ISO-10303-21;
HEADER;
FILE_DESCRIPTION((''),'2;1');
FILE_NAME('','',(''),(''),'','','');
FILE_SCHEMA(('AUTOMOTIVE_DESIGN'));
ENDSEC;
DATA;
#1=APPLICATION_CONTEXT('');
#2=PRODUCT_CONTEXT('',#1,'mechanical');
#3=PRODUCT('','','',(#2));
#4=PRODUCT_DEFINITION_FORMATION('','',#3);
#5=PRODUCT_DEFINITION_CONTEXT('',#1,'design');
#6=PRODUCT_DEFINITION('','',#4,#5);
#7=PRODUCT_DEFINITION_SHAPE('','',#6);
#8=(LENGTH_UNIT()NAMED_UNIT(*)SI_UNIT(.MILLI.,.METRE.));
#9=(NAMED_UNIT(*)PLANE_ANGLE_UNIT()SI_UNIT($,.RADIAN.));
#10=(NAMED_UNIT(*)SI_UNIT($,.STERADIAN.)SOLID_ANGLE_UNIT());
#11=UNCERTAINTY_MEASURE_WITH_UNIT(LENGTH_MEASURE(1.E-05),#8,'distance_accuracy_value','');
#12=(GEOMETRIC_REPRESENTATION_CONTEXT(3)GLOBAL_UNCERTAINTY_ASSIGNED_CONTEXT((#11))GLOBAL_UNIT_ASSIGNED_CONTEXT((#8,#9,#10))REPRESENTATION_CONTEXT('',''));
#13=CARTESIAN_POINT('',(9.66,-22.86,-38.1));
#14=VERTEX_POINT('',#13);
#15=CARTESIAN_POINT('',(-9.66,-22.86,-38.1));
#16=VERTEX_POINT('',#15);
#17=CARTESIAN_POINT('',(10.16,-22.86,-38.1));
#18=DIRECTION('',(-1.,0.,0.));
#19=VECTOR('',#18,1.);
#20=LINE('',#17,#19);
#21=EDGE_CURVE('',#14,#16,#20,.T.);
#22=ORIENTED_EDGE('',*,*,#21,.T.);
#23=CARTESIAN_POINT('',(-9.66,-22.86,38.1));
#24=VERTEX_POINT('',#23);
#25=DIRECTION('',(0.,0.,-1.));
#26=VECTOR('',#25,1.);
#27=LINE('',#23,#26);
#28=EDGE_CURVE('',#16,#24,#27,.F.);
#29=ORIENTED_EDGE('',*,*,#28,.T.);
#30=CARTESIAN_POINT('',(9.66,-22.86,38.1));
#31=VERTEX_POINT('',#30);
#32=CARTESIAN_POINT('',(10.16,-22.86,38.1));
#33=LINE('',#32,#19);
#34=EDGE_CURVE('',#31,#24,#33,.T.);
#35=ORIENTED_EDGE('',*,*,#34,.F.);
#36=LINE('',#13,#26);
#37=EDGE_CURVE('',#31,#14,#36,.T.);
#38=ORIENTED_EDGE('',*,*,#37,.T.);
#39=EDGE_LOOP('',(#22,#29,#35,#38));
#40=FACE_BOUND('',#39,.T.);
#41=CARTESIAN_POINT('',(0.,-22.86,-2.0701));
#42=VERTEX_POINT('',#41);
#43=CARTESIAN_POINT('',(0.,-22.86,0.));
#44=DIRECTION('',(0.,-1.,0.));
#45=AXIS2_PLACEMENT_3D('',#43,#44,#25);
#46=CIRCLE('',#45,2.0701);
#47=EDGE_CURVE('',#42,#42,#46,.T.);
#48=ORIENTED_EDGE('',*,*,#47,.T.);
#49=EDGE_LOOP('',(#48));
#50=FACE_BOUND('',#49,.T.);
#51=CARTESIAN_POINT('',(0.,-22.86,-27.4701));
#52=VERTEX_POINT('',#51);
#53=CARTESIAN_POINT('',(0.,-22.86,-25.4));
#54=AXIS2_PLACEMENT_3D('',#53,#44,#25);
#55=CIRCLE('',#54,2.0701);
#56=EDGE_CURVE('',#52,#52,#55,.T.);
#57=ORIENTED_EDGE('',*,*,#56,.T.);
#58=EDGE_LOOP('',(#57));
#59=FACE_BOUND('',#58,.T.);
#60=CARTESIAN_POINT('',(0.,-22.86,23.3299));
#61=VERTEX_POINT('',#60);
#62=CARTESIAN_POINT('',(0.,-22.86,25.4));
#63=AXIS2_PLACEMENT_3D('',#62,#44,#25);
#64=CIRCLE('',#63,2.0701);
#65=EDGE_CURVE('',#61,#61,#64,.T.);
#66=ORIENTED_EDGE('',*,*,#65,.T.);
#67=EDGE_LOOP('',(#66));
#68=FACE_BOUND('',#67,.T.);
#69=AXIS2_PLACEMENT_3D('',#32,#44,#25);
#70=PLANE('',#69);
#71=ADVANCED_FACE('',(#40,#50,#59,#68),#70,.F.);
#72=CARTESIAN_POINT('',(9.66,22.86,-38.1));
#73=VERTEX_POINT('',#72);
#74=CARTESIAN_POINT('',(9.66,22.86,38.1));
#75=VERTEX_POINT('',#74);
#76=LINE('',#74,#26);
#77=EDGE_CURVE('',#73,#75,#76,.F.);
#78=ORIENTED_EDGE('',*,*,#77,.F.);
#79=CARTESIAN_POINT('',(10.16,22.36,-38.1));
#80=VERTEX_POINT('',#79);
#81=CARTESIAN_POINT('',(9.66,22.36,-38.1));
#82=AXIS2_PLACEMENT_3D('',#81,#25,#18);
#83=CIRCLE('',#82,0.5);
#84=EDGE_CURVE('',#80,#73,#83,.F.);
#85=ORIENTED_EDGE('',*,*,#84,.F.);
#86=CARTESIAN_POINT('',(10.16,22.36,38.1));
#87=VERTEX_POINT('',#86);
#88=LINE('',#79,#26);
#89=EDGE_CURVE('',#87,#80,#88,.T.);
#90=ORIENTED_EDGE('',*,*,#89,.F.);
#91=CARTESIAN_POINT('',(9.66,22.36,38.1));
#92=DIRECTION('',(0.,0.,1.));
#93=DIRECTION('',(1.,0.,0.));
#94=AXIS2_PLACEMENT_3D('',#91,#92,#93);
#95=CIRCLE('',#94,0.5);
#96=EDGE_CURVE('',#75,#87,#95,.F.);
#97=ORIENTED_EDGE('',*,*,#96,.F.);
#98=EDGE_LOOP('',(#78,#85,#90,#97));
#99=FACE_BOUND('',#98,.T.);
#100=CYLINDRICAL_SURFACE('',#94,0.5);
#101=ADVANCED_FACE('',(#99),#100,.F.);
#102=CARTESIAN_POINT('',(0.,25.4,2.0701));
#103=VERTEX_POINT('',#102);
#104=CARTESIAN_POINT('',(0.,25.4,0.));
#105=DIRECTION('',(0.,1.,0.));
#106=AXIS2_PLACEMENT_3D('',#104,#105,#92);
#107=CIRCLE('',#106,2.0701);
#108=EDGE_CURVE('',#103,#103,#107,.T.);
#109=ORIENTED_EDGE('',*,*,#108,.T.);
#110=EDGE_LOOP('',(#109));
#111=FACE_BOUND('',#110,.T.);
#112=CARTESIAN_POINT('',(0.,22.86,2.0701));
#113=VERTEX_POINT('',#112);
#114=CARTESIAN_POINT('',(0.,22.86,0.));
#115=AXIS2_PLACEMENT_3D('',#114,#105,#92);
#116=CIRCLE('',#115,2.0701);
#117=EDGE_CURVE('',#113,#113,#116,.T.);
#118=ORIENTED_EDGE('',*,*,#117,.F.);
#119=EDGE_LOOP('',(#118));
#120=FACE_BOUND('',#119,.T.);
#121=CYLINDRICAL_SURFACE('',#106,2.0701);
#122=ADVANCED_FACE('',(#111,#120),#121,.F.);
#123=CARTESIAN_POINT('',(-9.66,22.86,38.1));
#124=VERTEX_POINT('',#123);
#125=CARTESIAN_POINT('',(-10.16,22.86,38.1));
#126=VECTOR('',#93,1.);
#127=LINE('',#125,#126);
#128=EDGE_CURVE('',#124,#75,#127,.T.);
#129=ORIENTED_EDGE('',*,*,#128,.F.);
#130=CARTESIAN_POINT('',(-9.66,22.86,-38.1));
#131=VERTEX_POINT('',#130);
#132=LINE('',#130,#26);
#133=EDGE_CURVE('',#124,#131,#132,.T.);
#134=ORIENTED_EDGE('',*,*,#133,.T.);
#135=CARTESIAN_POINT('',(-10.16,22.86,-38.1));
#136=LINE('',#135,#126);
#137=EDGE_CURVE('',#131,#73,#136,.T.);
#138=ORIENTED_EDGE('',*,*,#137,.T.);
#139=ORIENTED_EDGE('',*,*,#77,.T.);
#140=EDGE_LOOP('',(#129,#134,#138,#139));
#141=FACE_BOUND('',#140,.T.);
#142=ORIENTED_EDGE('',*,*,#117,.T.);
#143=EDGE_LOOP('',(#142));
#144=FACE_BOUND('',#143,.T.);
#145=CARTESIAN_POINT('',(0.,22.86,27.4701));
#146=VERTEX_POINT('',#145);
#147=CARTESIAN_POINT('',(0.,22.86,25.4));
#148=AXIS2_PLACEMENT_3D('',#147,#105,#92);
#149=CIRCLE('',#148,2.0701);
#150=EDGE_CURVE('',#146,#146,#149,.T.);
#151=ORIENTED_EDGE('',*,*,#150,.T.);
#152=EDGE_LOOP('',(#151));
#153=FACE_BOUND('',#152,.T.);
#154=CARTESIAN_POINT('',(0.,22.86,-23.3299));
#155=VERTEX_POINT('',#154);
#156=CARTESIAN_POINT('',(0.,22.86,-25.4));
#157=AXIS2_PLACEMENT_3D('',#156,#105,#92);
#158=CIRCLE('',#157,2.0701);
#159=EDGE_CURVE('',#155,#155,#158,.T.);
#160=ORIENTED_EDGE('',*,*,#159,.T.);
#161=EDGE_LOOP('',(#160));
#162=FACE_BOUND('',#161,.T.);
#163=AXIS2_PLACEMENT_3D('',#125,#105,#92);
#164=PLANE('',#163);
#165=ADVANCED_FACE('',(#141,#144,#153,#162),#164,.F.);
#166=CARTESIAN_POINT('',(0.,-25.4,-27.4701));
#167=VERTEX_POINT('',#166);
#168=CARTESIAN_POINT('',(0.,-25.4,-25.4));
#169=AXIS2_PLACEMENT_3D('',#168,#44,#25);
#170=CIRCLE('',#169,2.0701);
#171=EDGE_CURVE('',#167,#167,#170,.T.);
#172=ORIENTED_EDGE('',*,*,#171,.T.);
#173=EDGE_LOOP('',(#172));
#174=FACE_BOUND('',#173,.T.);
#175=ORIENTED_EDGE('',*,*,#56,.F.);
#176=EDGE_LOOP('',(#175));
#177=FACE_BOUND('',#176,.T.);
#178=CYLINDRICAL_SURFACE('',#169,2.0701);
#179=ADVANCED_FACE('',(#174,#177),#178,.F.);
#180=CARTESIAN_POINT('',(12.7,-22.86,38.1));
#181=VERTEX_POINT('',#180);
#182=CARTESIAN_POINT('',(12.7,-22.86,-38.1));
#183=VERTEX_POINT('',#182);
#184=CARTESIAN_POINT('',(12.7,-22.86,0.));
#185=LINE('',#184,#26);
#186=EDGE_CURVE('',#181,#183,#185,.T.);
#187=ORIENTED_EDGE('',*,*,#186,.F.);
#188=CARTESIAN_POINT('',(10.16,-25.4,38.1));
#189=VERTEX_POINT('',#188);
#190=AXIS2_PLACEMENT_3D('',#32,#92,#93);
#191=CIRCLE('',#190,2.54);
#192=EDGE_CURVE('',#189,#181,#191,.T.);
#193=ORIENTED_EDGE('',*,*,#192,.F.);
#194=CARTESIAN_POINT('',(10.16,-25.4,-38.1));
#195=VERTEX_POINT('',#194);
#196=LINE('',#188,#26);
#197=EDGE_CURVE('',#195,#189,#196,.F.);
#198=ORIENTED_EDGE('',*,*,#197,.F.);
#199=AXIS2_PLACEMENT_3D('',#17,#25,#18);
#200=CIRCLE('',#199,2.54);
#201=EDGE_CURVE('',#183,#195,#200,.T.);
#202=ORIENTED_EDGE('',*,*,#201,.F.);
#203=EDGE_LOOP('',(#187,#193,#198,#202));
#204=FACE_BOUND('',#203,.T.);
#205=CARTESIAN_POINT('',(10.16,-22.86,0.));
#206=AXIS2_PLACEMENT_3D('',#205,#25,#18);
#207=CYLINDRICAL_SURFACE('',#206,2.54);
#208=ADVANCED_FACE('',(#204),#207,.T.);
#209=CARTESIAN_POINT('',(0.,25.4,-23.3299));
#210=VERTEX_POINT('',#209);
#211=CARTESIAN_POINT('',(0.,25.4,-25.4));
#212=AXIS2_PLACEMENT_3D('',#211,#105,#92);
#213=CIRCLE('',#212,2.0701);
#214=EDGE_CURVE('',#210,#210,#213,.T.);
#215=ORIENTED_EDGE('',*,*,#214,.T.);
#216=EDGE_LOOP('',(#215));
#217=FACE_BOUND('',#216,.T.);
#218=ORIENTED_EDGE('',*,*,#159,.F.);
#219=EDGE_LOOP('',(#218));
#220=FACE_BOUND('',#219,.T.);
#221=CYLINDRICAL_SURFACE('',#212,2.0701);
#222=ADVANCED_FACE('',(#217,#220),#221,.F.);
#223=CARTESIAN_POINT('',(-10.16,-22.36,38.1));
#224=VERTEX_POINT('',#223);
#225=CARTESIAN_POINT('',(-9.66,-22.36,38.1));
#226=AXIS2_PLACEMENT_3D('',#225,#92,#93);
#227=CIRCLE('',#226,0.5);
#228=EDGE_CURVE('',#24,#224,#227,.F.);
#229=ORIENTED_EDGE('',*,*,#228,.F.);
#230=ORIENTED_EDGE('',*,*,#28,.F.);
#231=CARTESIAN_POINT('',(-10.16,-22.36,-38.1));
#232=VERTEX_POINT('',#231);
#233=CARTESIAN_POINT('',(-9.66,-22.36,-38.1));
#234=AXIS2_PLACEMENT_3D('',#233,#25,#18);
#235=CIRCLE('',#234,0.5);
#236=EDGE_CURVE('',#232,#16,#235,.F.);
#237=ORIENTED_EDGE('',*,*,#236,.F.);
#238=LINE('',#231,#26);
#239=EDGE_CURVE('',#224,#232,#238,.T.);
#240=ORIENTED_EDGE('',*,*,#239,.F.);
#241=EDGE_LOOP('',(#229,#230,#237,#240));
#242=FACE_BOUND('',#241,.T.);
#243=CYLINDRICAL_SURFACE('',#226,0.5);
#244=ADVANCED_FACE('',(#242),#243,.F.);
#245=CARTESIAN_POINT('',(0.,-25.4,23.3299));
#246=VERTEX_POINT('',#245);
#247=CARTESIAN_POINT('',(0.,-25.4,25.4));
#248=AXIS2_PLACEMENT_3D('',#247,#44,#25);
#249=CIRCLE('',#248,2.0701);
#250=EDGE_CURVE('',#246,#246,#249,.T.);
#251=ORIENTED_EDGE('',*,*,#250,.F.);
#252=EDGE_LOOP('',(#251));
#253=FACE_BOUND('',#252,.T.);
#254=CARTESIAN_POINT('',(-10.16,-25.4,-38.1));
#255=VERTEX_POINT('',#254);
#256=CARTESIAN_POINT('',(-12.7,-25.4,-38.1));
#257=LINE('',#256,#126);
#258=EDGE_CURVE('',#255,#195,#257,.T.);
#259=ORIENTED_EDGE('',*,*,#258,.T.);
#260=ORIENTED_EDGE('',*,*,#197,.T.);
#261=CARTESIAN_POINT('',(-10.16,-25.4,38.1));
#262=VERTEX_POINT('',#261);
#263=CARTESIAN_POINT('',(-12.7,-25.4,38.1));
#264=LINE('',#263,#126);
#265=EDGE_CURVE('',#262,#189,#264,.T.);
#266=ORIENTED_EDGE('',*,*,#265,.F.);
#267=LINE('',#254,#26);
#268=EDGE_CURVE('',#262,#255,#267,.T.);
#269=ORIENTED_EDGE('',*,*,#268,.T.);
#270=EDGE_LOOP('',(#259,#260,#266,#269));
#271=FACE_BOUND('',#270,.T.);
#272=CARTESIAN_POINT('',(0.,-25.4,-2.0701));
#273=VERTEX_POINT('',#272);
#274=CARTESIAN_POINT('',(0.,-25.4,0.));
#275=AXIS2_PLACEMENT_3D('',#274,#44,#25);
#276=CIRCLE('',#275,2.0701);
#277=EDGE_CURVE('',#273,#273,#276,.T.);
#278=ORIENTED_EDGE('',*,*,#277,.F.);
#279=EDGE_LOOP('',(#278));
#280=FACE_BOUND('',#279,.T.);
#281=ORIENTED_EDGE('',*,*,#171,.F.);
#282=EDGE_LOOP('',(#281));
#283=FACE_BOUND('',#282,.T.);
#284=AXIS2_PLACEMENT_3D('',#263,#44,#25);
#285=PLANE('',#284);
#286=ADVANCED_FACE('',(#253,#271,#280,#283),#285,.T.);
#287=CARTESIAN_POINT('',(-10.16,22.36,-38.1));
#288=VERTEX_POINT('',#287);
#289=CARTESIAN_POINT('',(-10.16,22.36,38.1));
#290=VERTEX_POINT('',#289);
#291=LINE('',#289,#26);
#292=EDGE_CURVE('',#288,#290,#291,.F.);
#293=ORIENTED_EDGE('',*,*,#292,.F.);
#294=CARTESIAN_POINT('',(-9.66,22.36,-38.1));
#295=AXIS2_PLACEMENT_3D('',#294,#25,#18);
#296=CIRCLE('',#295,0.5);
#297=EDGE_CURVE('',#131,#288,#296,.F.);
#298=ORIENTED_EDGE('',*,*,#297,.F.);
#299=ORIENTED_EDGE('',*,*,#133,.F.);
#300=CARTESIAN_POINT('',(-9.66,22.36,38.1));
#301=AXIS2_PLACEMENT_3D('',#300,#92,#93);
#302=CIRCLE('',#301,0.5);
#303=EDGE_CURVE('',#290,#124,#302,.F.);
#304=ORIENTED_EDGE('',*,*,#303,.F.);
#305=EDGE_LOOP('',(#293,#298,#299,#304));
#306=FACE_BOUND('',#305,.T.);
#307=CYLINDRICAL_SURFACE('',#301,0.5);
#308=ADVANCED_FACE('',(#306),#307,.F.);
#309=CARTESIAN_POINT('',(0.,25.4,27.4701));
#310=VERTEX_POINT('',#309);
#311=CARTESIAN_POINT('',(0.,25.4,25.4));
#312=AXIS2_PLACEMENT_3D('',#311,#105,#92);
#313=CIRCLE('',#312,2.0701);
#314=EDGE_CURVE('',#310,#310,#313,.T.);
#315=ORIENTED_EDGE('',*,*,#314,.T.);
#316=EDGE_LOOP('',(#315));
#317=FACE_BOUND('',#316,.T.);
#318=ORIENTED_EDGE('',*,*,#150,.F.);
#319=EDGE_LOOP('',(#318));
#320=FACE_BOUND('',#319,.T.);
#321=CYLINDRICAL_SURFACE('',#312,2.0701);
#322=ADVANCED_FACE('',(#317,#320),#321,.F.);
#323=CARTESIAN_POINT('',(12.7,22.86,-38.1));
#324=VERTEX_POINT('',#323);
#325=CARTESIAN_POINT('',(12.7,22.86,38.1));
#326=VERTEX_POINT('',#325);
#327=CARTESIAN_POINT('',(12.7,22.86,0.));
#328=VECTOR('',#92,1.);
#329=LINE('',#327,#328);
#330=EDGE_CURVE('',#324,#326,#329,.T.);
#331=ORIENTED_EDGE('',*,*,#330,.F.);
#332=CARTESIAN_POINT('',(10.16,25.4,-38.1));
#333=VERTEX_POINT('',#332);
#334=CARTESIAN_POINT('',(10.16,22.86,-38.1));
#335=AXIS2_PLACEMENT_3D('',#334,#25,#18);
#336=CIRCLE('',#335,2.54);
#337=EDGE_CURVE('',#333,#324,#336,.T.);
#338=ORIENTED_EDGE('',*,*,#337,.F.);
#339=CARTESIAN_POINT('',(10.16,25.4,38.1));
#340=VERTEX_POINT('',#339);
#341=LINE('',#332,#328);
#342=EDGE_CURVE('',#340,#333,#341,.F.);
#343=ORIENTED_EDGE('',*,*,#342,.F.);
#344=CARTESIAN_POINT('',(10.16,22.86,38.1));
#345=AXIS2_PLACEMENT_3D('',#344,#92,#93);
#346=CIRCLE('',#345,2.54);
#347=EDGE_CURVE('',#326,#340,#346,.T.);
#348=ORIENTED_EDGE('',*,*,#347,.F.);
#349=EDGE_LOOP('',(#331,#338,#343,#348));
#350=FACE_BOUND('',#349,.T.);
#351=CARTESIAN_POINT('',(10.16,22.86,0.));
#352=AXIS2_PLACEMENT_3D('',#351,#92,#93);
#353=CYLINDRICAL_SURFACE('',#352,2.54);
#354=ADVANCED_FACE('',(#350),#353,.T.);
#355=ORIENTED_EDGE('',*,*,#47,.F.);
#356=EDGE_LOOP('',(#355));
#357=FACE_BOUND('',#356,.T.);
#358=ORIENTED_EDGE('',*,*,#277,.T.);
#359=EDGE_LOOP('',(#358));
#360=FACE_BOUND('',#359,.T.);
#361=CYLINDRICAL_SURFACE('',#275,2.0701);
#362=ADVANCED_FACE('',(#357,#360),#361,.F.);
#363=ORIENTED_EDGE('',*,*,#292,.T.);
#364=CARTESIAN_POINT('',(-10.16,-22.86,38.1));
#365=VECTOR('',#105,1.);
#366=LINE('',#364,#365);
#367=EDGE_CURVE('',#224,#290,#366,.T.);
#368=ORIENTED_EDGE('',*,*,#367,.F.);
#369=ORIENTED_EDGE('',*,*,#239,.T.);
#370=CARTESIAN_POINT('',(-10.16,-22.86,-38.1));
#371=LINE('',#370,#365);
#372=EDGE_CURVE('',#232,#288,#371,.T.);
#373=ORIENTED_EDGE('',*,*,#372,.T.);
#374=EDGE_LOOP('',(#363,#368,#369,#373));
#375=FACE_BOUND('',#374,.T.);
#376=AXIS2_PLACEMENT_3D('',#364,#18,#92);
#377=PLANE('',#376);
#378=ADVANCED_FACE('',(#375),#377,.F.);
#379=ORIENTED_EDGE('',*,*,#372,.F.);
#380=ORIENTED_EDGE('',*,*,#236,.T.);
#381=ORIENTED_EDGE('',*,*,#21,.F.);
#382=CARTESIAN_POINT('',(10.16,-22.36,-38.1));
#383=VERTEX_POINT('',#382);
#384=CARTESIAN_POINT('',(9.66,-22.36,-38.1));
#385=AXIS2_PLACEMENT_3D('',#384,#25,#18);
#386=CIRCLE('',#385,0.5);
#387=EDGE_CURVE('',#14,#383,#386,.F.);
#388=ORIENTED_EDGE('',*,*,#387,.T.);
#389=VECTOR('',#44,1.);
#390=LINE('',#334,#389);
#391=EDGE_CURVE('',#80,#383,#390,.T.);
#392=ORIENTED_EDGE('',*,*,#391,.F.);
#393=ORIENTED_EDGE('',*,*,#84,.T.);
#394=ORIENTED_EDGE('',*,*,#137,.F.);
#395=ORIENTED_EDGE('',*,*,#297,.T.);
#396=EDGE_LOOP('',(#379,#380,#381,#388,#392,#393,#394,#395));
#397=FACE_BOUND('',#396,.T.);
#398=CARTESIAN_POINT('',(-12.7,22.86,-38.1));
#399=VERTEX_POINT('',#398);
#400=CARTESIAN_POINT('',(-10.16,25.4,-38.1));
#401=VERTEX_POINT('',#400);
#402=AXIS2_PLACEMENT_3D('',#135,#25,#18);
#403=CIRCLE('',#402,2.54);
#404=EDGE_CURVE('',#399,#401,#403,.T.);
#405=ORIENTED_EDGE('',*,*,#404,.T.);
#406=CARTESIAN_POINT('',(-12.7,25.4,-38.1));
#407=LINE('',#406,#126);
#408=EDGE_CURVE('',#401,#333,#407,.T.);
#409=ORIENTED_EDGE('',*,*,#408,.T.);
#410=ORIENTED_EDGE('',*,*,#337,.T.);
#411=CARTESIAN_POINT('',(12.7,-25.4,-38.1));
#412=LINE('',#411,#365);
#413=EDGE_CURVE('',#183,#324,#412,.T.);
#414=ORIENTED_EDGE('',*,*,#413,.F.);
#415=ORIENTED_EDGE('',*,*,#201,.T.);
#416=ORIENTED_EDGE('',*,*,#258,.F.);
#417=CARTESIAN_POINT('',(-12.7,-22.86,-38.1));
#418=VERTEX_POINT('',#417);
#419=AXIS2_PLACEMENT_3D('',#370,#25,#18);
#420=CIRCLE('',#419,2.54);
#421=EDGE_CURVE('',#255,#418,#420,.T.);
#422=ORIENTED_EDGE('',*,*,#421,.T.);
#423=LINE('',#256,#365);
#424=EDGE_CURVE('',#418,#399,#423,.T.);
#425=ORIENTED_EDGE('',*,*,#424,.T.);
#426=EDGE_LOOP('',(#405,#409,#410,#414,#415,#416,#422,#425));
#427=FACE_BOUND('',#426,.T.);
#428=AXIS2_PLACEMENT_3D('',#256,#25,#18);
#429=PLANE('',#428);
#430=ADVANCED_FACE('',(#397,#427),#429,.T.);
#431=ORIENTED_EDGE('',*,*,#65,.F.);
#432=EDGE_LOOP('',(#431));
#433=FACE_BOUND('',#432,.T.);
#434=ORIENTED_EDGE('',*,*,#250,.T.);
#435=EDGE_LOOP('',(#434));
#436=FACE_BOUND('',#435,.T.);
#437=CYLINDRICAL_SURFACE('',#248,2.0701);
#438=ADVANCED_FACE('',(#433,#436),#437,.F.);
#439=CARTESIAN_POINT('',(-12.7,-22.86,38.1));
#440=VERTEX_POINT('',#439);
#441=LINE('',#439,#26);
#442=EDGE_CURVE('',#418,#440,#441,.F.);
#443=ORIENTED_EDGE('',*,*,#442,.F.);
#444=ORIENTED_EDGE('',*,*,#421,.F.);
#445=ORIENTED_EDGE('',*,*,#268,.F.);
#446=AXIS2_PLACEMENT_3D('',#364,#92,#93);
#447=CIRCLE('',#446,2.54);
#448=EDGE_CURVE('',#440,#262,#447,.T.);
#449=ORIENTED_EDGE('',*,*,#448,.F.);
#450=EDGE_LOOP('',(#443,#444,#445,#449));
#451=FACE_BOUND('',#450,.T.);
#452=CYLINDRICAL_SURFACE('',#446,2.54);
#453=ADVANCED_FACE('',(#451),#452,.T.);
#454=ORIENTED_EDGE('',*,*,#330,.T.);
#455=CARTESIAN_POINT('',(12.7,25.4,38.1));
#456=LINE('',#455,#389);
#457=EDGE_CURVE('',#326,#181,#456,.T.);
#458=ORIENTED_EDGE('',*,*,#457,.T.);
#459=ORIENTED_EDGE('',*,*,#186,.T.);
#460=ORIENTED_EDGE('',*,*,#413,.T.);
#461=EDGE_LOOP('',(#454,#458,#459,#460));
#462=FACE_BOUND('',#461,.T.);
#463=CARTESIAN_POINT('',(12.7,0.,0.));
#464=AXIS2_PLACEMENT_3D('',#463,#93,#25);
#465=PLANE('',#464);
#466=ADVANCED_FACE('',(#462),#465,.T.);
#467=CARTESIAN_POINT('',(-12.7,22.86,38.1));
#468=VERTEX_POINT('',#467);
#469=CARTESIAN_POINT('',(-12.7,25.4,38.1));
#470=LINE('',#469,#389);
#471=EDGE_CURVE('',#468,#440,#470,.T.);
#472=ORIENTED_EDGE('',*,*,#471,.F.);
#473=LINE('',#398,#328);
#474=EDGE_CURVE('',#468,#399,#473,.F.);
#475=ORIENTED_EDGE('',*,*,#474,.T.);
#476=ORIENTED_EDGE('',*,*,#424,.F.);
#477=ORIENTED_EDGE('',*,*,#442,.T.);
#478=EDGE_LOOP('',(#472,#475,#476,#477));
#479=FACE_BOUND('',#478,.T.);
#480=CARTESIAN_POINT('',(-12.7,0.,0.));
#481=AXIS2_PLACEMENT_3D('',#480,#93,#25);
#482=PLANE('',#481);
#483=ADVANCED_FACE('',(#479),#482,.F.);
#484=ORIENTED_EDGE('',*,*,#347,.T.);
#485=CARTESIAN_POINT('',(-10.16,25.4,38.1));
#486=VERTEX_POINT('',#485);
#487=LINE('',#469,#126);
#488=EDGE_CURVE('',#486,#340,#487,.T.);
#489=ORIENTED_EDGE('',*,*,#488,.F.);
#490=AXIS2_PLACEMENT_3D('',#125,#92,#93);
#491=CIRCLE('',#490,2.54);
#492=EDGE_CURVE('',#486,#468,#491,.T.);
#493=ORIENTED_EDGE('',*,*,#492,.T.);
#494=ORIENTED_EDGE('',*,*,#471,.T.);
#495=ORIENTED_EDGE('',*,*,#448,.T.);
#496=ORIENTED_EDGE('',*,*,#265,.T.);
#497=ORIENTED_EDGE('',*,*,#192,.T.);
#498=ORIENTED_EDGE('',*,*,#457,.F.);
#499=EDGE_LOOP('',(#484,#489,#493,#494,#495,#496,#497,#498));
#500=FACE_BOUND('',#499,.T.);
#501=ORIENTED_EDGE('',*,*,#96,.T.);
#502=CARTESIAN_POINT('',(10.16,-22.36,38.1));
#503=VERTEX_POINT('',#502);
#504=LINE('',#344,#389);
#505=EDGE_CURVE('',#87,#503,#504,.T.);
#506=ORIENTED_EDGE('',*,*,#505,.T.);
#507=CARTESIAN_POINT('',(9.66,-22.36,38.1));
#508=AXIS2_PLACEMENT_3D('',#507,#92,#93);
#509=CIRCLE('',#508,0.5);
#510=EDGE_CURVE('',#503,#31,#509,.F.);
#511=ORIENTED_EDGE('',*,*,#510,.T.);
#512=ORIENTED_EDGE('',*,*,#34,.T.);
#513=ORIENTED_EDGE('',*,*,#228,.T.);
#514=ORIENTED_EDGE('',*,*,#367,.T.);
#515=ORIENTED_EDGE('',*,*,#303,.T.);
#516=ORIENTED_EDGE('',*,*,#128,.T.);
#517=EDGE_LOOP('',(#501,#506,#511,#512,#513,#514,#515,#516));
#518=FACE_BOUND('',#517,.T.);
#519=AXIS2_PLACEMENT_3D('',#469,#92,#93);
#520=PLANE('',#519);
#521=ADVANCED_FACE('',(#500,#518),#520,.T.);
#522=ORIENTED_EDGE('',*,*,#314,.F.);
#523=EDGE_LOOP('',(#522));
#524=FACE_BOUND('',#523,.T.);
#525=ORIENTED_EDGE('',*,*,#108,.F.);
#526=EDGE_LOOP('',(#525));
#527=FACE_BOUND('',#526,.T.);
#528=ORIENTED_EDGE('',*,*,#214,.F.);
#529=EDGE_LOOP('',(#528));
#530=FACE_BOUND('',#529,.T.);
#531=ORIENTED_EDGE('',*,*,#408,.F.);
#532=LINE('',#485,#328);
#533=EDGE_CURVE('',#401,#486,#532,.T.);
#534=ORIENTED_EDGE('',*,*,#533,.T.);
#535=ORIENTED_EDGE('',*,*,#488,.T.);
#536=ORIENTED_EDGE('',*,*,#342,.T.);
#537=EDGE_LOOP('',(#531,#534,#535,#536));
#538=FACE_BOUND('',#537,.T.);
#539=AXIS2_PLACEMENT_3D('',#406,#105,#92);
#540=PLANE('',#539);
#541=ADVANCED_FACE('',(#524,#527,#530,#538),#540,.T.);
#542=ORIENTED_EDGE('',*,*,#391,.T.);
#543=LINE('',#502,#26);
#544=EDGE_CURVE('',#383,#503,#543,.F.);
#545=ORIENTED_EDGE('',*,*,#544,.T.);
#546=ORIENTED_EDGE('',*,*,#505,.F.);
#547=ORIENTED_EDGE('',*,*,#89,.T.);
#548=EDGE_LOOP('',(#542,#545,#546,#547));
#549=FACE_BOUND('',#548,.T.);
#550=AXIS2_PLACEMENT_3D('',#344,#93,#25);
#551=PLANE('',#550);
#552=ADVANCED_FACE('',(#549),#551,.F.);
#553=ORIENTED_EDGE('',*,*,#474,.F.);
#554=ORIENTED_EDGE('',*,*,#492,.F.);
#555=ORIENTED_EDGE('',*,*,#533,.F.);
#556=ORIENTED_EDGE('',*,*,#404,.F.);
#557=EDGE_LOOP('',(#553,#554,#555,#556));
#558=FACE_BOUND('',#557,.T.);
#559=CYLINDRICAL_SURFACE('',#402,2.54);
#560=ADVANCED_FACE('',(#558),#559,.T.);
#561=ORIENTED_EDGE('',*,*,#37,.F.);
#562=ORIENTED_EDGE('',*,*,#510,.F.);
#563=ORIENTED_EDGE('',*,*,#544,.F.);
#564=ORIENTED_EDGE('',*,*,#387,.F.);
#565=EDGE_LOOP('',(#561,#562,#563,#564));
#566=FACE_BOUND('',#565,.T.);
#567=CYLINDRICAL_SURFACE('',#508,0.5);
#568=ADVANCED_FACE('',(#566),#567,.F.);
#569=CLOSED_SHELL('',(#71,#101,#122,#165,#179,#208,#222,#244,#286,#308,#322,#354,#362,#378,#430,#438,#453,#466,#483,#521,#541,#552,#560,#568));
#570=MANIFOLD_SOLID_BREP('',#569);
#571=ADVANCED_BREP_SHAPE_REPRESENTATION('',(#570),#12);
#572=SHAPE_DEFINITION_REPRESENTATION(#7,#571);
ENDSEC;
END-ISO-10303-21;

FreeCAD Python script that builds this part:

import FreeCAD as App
import Part
import Sketcher

V = App.Vector
Q = App.Units.Quantity


def edges_at(feature, points):
    """Names of the edges that pass closest to the given points."""
    edges = feature.Shape.Edges
    near = lambda p: min(range(len(edges)), key=lambda i: edges[i].distToShape(Part.Vertex(*p))[0])
    return sorted({f"Edge{near(p) + 1}" for p in points})

doc = App.newDocument("Part")
params = doc.addObject("Spreadsheet::Sheet", "Params")
for row, (alias, value) in enumerate([
    ("sketch1_width", "2 in"),
    ("sketch1_height", "3 in"),
    ("pad1_length", "1 in"),
    ("sketch2_width", "0.8 in"),
    ("sketch2_height", "1.8 in"),
    ("sketch3_diameter", "0.163 in"),
    ("hole_diameter", "0.163 in"),
    ("hole_depth", "2 in"),
    ("sketch4_diameter", "0.163 in"),
    ("hole2_diameter", "0.163 in"),
    ("hole2_depth", "2 in"),
    ("fillet_radius", "0.5 mm"),
    ("fillet2_radius", "0.1 in"),
], start=1):
    params.set(f"A{row}", alias)
    params.set(f"B{row}", "=" + value)
    params.setAlias(f"B{row}", alias)

body = doc.addObject("PartDesign::Body", "Body")

# Sketch on YZ plane
sketch1 = body.newObject("Sketcher::SketchObject", "Sketch")
sketch1.AttachmentSupport = (doc.getObject("YZ_Plane"), [""])
sketch1.MapMode = "FlatFace"
sketch1.AttachmentOffset = App.Placement(V(0, 0, 0.5 * 25.4), App.Rotation())
sketch1.addGeometry([
    Part.LineSegment(V(25.4, 38.1, 0), V(-25.4, 38.1, 0)),
    Part.LineSegment(V(-25.4, 38.1, 0), V(-25.4, -38.1, 0)),
    Part.LineSegment(V(-25.4, -38.1, 0), V(25.4, -38.1, 0)),
    Part.LineSegment(V(25.4, -38.1, 0), V(25.4, 38.1, 0)),
], False)
sketch1.addConstraint([
    Sketcher.Constraint("Coincident", 0, 2, 1, 1),
    Sketcher.Constraint("Coincident", 1, 2, 2, 1),
    Sketcher.Constraint("Coincident", 2, 2, 3, 1),
    Sketcher.Constraint("Coincident", 3, 2, 0, 1),
    Sketcher.Constraint("Horizontal", 0),
    Sketcher.Constraint("Vertical", 1),
    Sketcher.Constraint("Horizontal", 2),
    Sketcher.Constraint("Vertical", 3),
    Sketcher.Constraint("Symmetric", 0, 2, 2, 2, -1, 1),
    Sketcher.Constraint("DistanceX", 0, 2, 0, 1, Q("2 in")),
    Sketcher.Constraint("DistanceY", 1, 2, 1, 1, Q("3 in")),
])
sketch1.setExpression("Constraints[9]", "Params.sketch1_width")
sketch1.setExpression("Constraints[10]", "Params.sketch1_height")
pad1 = body.newObject("PartDesign::Pad", "Pad")
pad1.Profile = sketch1
pad1.setExpression("Length", "Params.pad1_length")
pad1.Reversed = True

# Sketch on XY plane
sketch2 = body.newObject("Sketcher::SketchObject", "Sketch001")
sketch2.AttachmentSupport = (doc.getObject("XY_Plane"), [""])
sketch2.MapMode = "FlatFace"
sketch2.AttachmentOffset = App.Placement(V(0, 0, -1.5 * 25.4), App.Rotation())
sketch2.addGeometry([
    Part.LineSegment(V(10.16, 22.86, 0), V(10.16, -22.86, 0)),
    Part.LineSegment(V(10.16, -22.86, 0), V(-10.16, -22.86, 0)),
    Part.LineSegment(V(-10.16, -22.86, 0), V(-10.16, 22.86, 0)),
    Part.LineSegment(V(-10.16, 22.86, 0), V(10.16, 22.86, 0)),
], False)
sketch2.addConstraint([
    Sketcher.Constraint("Coincident", 0, 2, 1, 1),
    Sketcher.Constraint("Coincident", 1, 2, 2, 1),
    Sketcher.Constraint("Coincident", 2, 2, 3, 1),
    Sketcher.Constraint("Coincident", 3, 2, 0, 1),
    Sketcher.Constraint("Vertical", 0),
    Sketcher.Constraint("Horizontal", 1),
    Sketcher.Constraint("Vertical", 2),
    Sketcher.Constraint("Horizontal", 3),
    Sketcher.Constraint("Symmetric", 0, 2, 2, 2, -1, 1),
    Sketcher.Constraint("DistanceX", 1, 2, 1, 1, Q("0.8 in")),
    Sketcher.Constraint("DistanceY", 0, 2, 0, 1, Q("1.8 in")),
])
sketch2.setExpression("Constraints[9]", "Params.sketch2_width")
sketch2.setExpression("Constraints[10]", "Params.sketch2_height")
pocket1 = body.newObject("PartDesign::Pocket", "Pocket")
pocket1.Profile = sketch2
pocket1.Type = "ThroughAll"
pocket1.Reversed = True

# Sketch on XZ plane
sketch3 = body.newObject("Sketcher::SketchObject", "Sketch002")
sketch3.AttachmentSupport = (doc.getObject("XZ_Plane"), [""])
sketch3.MapMode = "FlatFace"
sketch3.AttachmentOffset = App.Placement(V(0, 0, 1 * 25.4), App.Rotation())
sketch3.addGeometry([
    Part.Circle(V(0, -711.2, 0), V(0, 0, 1), 2.0701),  # 0
    Part.Circle(V(0, -736.6, 0), V(0, 0, 1), 2.0701),  # 1
    Part.Circle(V(0, -685.8, 0), V(0, 0, 1), 2.0701),  # 2
    Part.Circle(V(0, -660.4, 0), V(0, 0, 1), 2.0701),  # 3
    Part.Circle(V(0, -635, 0), V(0, 0, 1), 2.0701),  # 4
    Part.Circle(V(0, -609.6, 0), V(0, 0, 1), 2.0701),  # 5
    Part.Circle(V(0, -584.2, 0), V(0, 0, 1), 2.0701),  # 6
    Part.Circle(V(0, -558.8, 0), V(0, 0, 1), 2.0701),  # 7
    Part.Circle(V(0, -533.4, 0), V(0, 0, 1), 2.0701),  # 8
    Part.Circle(V(0, -508, 0), V(0, 0, 1), 2.0701),  # 9
    Part.Circle(V(0, -482.6, 0), V(0, 0, 1), 2.0701),  # 10
    Part.Circle(V(0, -457.2, 0), V(0, 0, 1), 2.0701),  # 11
    Part.Circle(V(0, -431.8, 0), V(0, 0, 1), 2.0701),  # 12
    Part.Circle(V(0, -406.4, 0), V(0, 0, 1), 2.0701),  # 13
    Part.Circle(V(0, -381, 0), V(0, 0, 1), 2.0701),  # 14
    Part.Circle(V(0, -355.6, 0), V(0, 0, 1), 2.0701),  # 15
    Part.Circle(V(0, -330.2, 0), V(0, 0, 1), 2.0701),  # 16
    Part.Circle(V(0, -304.8, 0), V(0, 0, 1), 2.0701),  # 17
    Part.Circle(V(0, -279.4, 0), V(0, 0, 1), 2.0701),  # 18
    Part.Circle(V(0, -254, 0), V(0, 0, 1), 2.0701),  # 19
    Part.Circle(V(0, -228.6, 0), V(0, 0, 1), 2.0701),  # 20
    Part.Circle(V(0, -203.2, 0), V(0, 0, 1), 2.0701),  # 21
    Part.Circle(V(0, -177.8, 0), V(0, 0, 1), 2.0701),  # 22
    Part.Circle(V(0, -152.4, 0), V(0, 0, 1), 2.0701),  # 23
    Part.Circle(V(0, -127, 0), V(0, 0, 1), 2.0701),  # 24
    Part.Circle(V(0, -101.6, 0), V(0, 0, 1), 2.0701),  # 25
    Part.Circle(V(0, -76.2, 0), V(0, 0, 1), 2.0701),  # 26
    Part.Circle(V(0, -50.8, 0), V(0, 0, 1), 2.0701),  # 27
    Part.Circle(V(0, -25.4, 0), V(0, 0, 1), 2.0701),  # 28
    Part.Circle(V(0, 0, 0), V(0, 0, 1), 2.0701),  # 29
    Part.Circle(V(0, 25.4, 0), V(0, 0, 1), 2.0701),  # 30
    Part.Circle(V(0, 50.8, 0), V(0, 0, 1), 2.0701),  # 31
    Part.Circle(V(0, 76.2, 0), V(0, 0, 1), 2.0701),  # 32
    Part.Circle(V(0, 101.6, 0), V(0, 0, 1), 2.0701),  # 33
    Part.Circle(V(0, 127, 0), V(0, 0, 1), 2.0701),  # 34
    Part.Circle(V(0, 152.4, 0), V(0, 0, 1), 2.0701),  # 35
    Part.Circle(V(0, 177.8, 0), V(0, 0, 1), 2.0701),  # 36
    Part.Circle(V(0, 203.2, 0), V(0, 0, 1), 2.0701),  # 37
    Part.Circle(V(0, 228.6, 0), V(0, 0, 1), 2.0701),  # 38
    Part.Circle(V(0, 254, 0), V(0, 0, 1), 2.0701),  # 39
    Part.Circle(V(0, 279.4, 0), V(0, 0, 1), 2.0701),  # 40
    Part.Circle(V(0, 304.8, 0), V(0, 0, 1), 2.0701),  # 41
    Part.Circle(V(0, 330.2, 0), V(0, 0, 1), 2.0701),  # 42
    Part.Circle(V(0, 355.6, 0), V(0, 0, 1), 2.0701),  # 43
    Part.Circle(V(0, 381, 0), V(0, 0, 1), 2.0701),  # 44
    Part.Circle(V(0, 406.4, 0), V(0, 0, 1), 2.0701),  # 45
    Part.Circle(V(0, 431.8, 0), V(0, 0, 1), 2.0701),  # 46
    Part.Circle(V(0, 457.2, 0), V(0, 0, 1), 2.0701),  # 47
    Part.Circle(V(0, 482.6, 0), V(0, 0, 1), 2.0701),  # 48
    Part.Circle(V(0, 508, 0), V(0, 0, 1), 2.0701),  # 49
    Part.Circle(V(0, 533.4, 0), V(0, 0, 1), 2.0701),  # 50
    Part.Circle(V(0, 558.8, 0), V(0, 0, 1), 2.0701),  # 51
    Part.Circle(V(0, 584.2, 0), V(0, 0, 1), 2.0701),  # 52
    Part.Circle(V(0, 609.6, 0), V(0, 0, 1), 2.0701),  # 53
    Part.Circle(V(0, 635, 0), V(0, 0, 1), 2.0701),  # 54
    Part.Circle(V(0, 660.4, 0), V(0, 0, 1), 2.0701),  # 55
    Part.Circle(V(0, 685.8, 0), V(0, 0, 1), 2.0701),  # 56
    Part.Circle(V(0, 711.2, 0), V(0, 0, 1), 2.0701),  # 57
    Part.Circle(V(0, 736.6, 0), V(0, 0, 1), 2.0701),  # 58
], False)
sketch3.addConstraint([
    Sketcher.Constraint("Coincident", 29, 3, -1, 1),
    Sketcher.Constraint("Equal", 0, 1),
    Sketcher.Constraint("Equal", 1, 2),
    Sketcher.Constraint("Equal", 2, 3),
    Sketcher.Constraint("Equal", 3, 4),
    Sketcher.Constraint("Equal", 4, 5),
    Sketcher.Constraint("Equal", 5, 6),
    Sketcher.Constraint("Equal", 6, 7),
    Sketcher.Constraint("Equal", 7, 8),
    Sketcher.Constraint("Equal", 8, 9),
    Sketcher.Constraint("Equal", 9, 10),
    Sketcher.Constraint("Equal", 10, 11),
    Sketcher.Constraint("Equal", 11, 12),
    Sketcher.Constraint("Equal", 12, 13),
    Sketcher.Constraint("Equal", 13, 14),
    Sketcher.Constraint("Equal", 14, 15),
    Sketcher.Constraint("Equal", 15, 16),
    Sketcher.Constraint("Equal", 16, 17),
    Sketcher.Constraint("Equal", 17, 18),
    Sketcher.Constraint("Equal", 18, 19),
    Sketcher.Constraint("Equal", 19, 20),
    Sketcher.Constraint("Equal", 20, 21),
    Sketcher.Constraint("Equal", 21, 22),
    Sketcher.Constraint("Equal", 22, 23),
    Sketcher.Constraint("Equal", 23, 24),
    Sketcher.Constraint("Equal", 24, 25),
    Sketcher.Constraint("Equal", 25, 26),
    Sketcher.Constraint("Equal", 26, 27),
    Sketcher.Constraint("Equal", 27, 28),
    Sketcher.Constraint("Equal", 28, 29),
    Sketcher.Constraint("Equal", 29, 30),
    Sketcher.Constraint("Equal", 30, 31),
    Sketcher.Constraint("Equal", 31, 32),
    Sketcher.Constraint("Equal", 32, 33),
    Sketcher.Constraint("Equal", 33, 34),
    Sketcher.Constraint("Equal", 34, 35),
    Sketcher.Constraint("Equal", 35, 36),
    Sketcher.Constraint("Equal", 36, 37),
    Sketcher.Constraint("Equal", 37, 38),
    Sketcher.Constraint("Equal", 38, 39),
    Sketcher.Constraint("Equal", 39, 40),
    Sketcher.Constraint("Equal", 40, 41),
    Sketcher.Constraint("Equal", 41, 42),
    Sketcher.Constraint("Equal", 42, 43),
    Sketcher.Constraint("Equal", 43, 44),
    Sketcher.Constraint("Equal", 44, 45),
    Sketcher.Constraint("Equal", 45, 46),
    Sketcher.Constraint("Equal", 46, 47),
    Sketcher.Constraint("Equal", 47, 48),
    Sketcher.Constraint("Equal", 48, 49),
    Sketcher.Constraint("Equal", 49, 50),
    Sketcher.Constraint("Equal", 50, 51),
    Sketcher.Constraint("Equal", 51, 52),
    Sketcher.Constraint("Equal", 52, 53),
    Sketcher.Constraint("Equal", 53, 54),
    Sketcher.Constraint("Equal", 54, 55),
    Sketcher.Constraint("Equal", 55, 56),
    Sketcher.Constraint("Equal", 56, 57),
    Sketcher.Constraint("Equal", 57, 58),
    Sketcher.Constraint("Symmetric", 28, 3, 30, 3, -1, 1),
    Sketcher.Constraint("Symmetric", 27, 3, 31, 3, -1, 1),
    Sketcher.Constraint("Symmetric", 26, 3, 32, 3, -1, 1),
    Sketcher.Constraint("Symmetric", 25, 3, 33, 3, -1, 1),
    Sketcher.Constraint("Symmetric", 24, 3, 34, 3, -1, 1),
    Sketcher.Constraint("Symmetric", 23, 3, 35, 3, -1, 1),
    Sketcher.Constraint("Symmetric", 22, 3, 36, 3, -1, 1),
    Sketcher.Constraint("Symmetric", 21, 3, 37, 3, -1, 1),
    Sketcher.Constraint("Symmetric", 20, 3, 38, 3, -1, 1),
    Sketcher.Constraint("Symmetric", 19, 3, 39, 3, -1, 1),
    Sketcher.Constraint("Symmetric", 18, 3, 40, 3, -1, 1),
    Sketcher.Constraint("Symmetric", 17, 3, 41, 3, -1, 1),
    Sketcher.Constraint("Symmetric", 16, 3, 42, 3, -1, 1),
    Sketcher.Constraint("Symmetric", 15, 3, 43, 3, -1, 1),
    Sketcher.Constraint("Symmetric", 14, 3, 44, 3, -1, 1),
    Sketcher.Constraint("Symmetric", 13, 3, 45, 3, -1, 1),
    Sketcher.Constraint("Symmetric", 12, 3, 46, 3, -1, 1),
    Sketcher.Constraint("Symmetric", 11, 3, 47, 3, -1, 1),
    Sketcher.Constraint("Symmetric", 10, 3, 48, 3, -1, 1),
    Sketcher.Constraint("Symmetric", 9, 3, 49, 3, -1, 1),
    Sketcher.Constraint("Symmetric", 8, 3, 50, 3, -1, 1),
    Sketcher.Constraint("Symmetric", 7, 3, 51, 3, -1, 1),
    Sketcher.Constraint("Symmetric", 6, 3, 52, 3, -1, 1),
    Sketcher.Constraint("Symmetric", 5, 3, 53, 3, -1, 1),
    Sketcher.Constraint("Symmetric", 4, 3, 54, 3, -1, 1),
    Sketcher.Constraint("Symmetric", 3, 3, 55, 3, -1, 1),
    Sketcher.Constraint("Symmetric", 2, 3, 56, 3, -1, 1),
    Sketcher.Constraint("Symmetric", 0, 3, 57, 3, -1, 1),
    Sketcher.Constraint("Symmetric", 1, 3, 58, 3, -1, 1),
    Sketcher.Constraint("PointOnObject", 0, 3, -2),
    Sketcher.Constraint("PointOnObject", 1, 3, -2),
    Sketcher.Constraint("PointOnObject", 2, 3, -2),
    Sketcher.Constraint("PointOnObject", 3, 3, -2),
    Sketcher.Constraint("PointOnObject", 4, 3, -2),
    Sketcher.Constraint("PointOnObject", 5, 3, -2),
    Sketcher.Constraint("PointOnObject", 6, 3, -2),
    Sketcher.Constraint("PointOnObject", 7, 3, -2),
    Sketcher.Constraint("PointOnObject", 8, 3, -2),
    Sketcher.Constraint("PointOnObject", 9, 3, -2),
    Sketcher.Constraint("PointOnObject", 10, 3, -2),
    Sketcher.Constraint("PointOnObject", 11, 3, -2),
    Sketcher.Constraint("PointOnObject", 12, 3, -2),
    Sketcher.Constraint("PointOnObject", 13, 3, -2),
    Sketcher.Constraint("PointOnObject", 14, 3, -2),
    Sketcher.Constraint("PointOnObject", 15, 3, -2),
    Sketcher.Constraint("PointOnObject", 16, 3, -2),
    Sketcher.Constraint("PointOnObject", 17, 3, -2),
    Sketcher.Constraint("PointOnObject", 18, 3, -2),
    Sketcher.Constraint("PointOnObject", 19, 3, -2),
    Sketcher.Constraint("PointOnObject", 20, 3, -2),
    Sketcher.Constraint("PointOnObject", 21, 3, -2),
    Sketcher.Constraint("PointOnObject", 22, 3, -2),
    Sketcher.Constraint("PointOnObject", 23, 3, -2),
    Sketcher.Constraint("PointOnObject", 24, 3, -2),
    Sketcher.Constraint("PointOnObject", 25, 3, -2),
    Sketcher.Constraint("PointOnObject", 26, 3, -2),
    Sketcher.Constraint("PointOnObject", 27, 3, -2),
    Sketcher.Constraint("PointOnObject", 28, 3, -2),
    Sketcher.Constraint("Diameter", 0, Q("0.163 in")),
    Sketcher.Constraint("DistanceY", 0, 3, -1, 1, Q("28 in")),
    Sketcher.Constraint("DistanceY", 1, 3, -1, 1, Q("29 in")),
    Sketcher.Constraint("DistanceY", 2, 3, -1, 1, Q("27 in")),
    Sketcher.Constraint("DistanceY", 3, 3, -1, 1, Q("26 in")),
    Sketcher.Constraint("DistanceY", 4, 3, -1, 1, Q("25 in")),
    Sketcher.Constraint("DistanceY", 5, 3, -1, 1, Q("24 in")),
    Sketcher.Constraint("DistanceY", 6, 3, -1, 1, Q("23 in")),
    Sketcher.Constraint("DistanceY", 7, 3, -1, 1, Q("22 in")),
    Sketcher.Constraint("DistanceY", 8, 3, -1, 1, Q("21 in")),
    Sketcher.Constraint("DistanceY", 9, 3, -1, 1, Q("20 in")),
    Sketcher.Constraint("DistanceY", 10, 3, -1, 1, Q("19 in")),
    Sketcher.Constraint("DistanceY", 11, 3, -1, 1, Q("18 in")),
    Sketcher.Constraint("DistanceY", 12, 3, -1, 1, Q("17 in")),
    Sketcher.Constraint("DistanceY", 13, 3, -1, 1, Q("16 in")),
    Sketcher.Constraint("DistanceY", 14, 3, -1, 1, Q("15 in")),
    Sketcher.Constraint("DistanceY", 15, 3, -1, 1, Q("14 in")),
    Sketcher.Constraint("DistanceY", 16, 3, -1, 1, Q("13 in")),
    Sketcher.Constraint("DistanceY", 17, 3, -1, 1, Q("12 in")),
    Sketcher.Constraint("DistanceY", 18, 3, -1, 1, Q("11 in")),
    Sketcher.Constraint("DistanceY", 19, 3, -1, 1, Q("10 in")),
    Sketcher.Constraint("DistanceY", 20, 3, -1, 1, Q("9 in")),
    Sketcher.Constraint("DistanceY", 21, 3, -1, 1, Q("8 in")),
    Sketcher.Constraint("DistanceY", 22, 3, -1, 1, Q("7 in")),
    Sketcher.Constraint("DistanceY", 23, 3, -1, 1, Q("6 in")),
    Sketcher.Constraint("DistanceY", 24, 3, -1, 1, Q("5 in")),
    Sketcher.Constraint("DistanceY", 25, 3, -1, 1, Q("4 in")),
    Sketcher.Constraint("DistanceY", 26, 3, -1, 1, Q("3 in")),
    Sketcher.Constraint("DistanceY", 27, 3, -1, 1, Q("2 in")),
    Sketcher.Constraint("DistanceY", 28, 3, -1, 1, Q("1 in")),
])
sketch3.setExpression("Constraints[117]", "Params.sketch3_diameter")
doc.recompute()
hole = body.newObject("PartDesign::Hole", "Hole")
hole.Profile = sketch3
hole.ThreadType = "None"
hole.setExpression("Diameter", "Params.hole_diameter")
hole.DepthType = "Dimension"
hole.setExpression("Depth", "Params.hole_depth")
hole.DrillPoint = "Flat"

# Sketch on XZ plane
sketch4 = body.newObject("Sketcher::SketchObject", "Sketch003")
sketch4.AttachmentSupport = (doc.getObject("XZ_Plane"), [""])
sketch4.MapMode = "FlatFace"
sketch4.AttachmentOffset = App.Placement(V(0, 0, -1 * 25.4), App.Rotation())
sketch4.addGeometry([
    Part.Circle(V(0, -711.2, 0), V(0, 0, 1), 2.0701),  # 0
    Part.Circle(V(0, -736.6, 0), V(0, 0, 1), 2.0701),  # 1
    Part.Circle(V(0, -685.8, 0), V(0, 0, 1), 2.0701),  # 2
    Part.Circle(V(0, -660.4, 0), V(0, 0, 1), 2.0701),  # 3
    Part.Circle(V(0, -635, 0), V(0, 0, 1), 2.0701),  # 4
    Part.Circle(V(0, -609.6, 0), V(0, 0, 1), 2.0701),  # 5
    Part.Circle(V(0, -584.2, 0), V(0, 0, 1), 2.0701),  # 6
    Part.Circle(V(0, -558.8, 0), V(0, 0, 1), 2.0701),  # 7
    Part.Circle(V(0, -533.4, 0), V(0, 0, 1), 2.0701),  # 8
    Part.Circle(V(0, -508, 0), V(0, 0, 1), 2.0701),  # 9
    Part.Circle(V(0, -482.6, 0), V(0, 0, 1), 2.0701),  # 10
    Part.Circle(V(0, -457.2, 0), V(0, 0, 1), 2.0701),  # 11
    Part.Circle(V(0, -431.8, 0), V(0, 0, 1), 2.0701),  # 12
    Part.Circle(V(0, -406.4, 0), V(0, 0, 1), 2.0701),  # 13
    Part.Circle(V(0, -381, 0), V(0, 0, 1), 2.0701),  # 14
    Part.Circle(V(0, -355.6, 0), V(0, 0, 1), 2.0701),  # 15
    Part.Circle(V(0, -330.2, 0), V(0, 0, 1), 2.0701),  # 16
    Part.Circle(V(0, -304.8, 0), V(0, 0, 1), 2.0701),  # 17
    Part.Circle(V(0, -279.4, 0), V(0, 0, 1), 2.0701),  # 18
    Part.Circle(V(0, -254, 0), V(0, 0, 1), 2.0701),  # 19
    Part.Circle(V(0, -228.6, 0), V(0, 0, 1), 2.0701),  # 20
    Part.Circle(V(0, -203.2, 0), V(0, 0, 1), 2.0701),  # 21
    Part.Circle(V(0, -177.8, 0), V(0, 0, 1), 2.0701),  # 22
    Part.Circle(V(0, -152.4, 0), V(0, 0, 1), 2.0701),  # 23
    Part.Circle(V(0, -127, 0), V(0, 0, 1), 2.0701),  # 24
    Part.Circle(V(0, -101.6, 0), V(0, 0, 1), 2.0701),  # 25
    Part.Circle(V(0, -76.2, 0), V(0, 0, 1), 2.0701),  # 26
    Part.Circle(V(0, -50.8, 0), V(0, 0, 1), 2.0701),  # 27
    Part.Circle(V(0, -25.4, 0), V(0, 0, 1), 2.0701),  # 28
    Part.Circle(V(0, 0, 0), V(0, 0, 1), 2.0701),  # 29
    Part.Circle(V(0, 25.4, 0), V(0, 0, 1), 2.0701),  # 30
    Part.Circle(V(0, 50.8, 0), V(0, 0, 1), 2.0701),  # 31
    Part.Circle(V(0, 76.2, 0), V(0, 0, 1), 2.0701),  # 32
    Part.Circle(V(0, 101.6, 0), V(0, 0, 1), 2.0701),  # 33
    Part.Circle(V(0, 127, 0), V(0, 0, 1), 2.0701),  # 34
    Part.Circle(V(0, 152.4, 0), V(0, 0, 1), 2.0701),  # 35
    Part.Circle(V(0, 177.8, 0), V(0, 0, 1), 2.0701),  # 36
    Part.Circle(V(0, 203.2, 0), V(0, 0, 1), 2.0701),  # 37
    Part.Circle(V(0, 228.6, 0), V(0, 0, 1), 2.0701),  # 38
    Part.Circle(V(0, 254, 0), V(0, 0, 1), 2.0701),  # 39
    Part.Circle(V(0, 279.4, 0), V(0, 0, 1), 2.0701),  # 40
    Part.Circle(V(0, 304.8, 0), V(0, 0, 1), 2.0701),  # 41
    Part.Circle(V(0, 330.2, 0), V(0, 0, 1), 2.0701),  # 42
    Part.Circle(V(0, 355.6, 0), V(0, 0, 1), 2.0701),  # 43
    Part.Circle(V(0, 381, 0), V(0, 0, 1), 2.0701),  # 44
    Part.Circle(V(0, 406.4, 0), V(0, 0, 1), 2.0701),  # 45
    Part.Circle(V(0, 431.8, 0), V(0, 0, 1), 2.0701),  # 46
    Part.Circle(V(0, 457.2, 0), V(0, 0, 1), 2.0701),  # 47
    Part.Circle(V(0, 482.6, 0), V(0, 0, 1), 2.0701),  # 48
    Part.Circle(V(0, 508, 0), V(0, 0, 1), 2.0701),  # 49
    Part.Circle(V(0, 533.4, 0), V(0, 0, 1), 2.0701),  # 50
    Part.Circle(V(0, 558.8, 0), V(0, 0, 1), 2.0701),  # 51
    Part.Circle(V(0, 584.2, 0), V(0, 0, 1), 2.0701),  # 52
    Part.Circle(V(0, 609.6, 0), V(0, 0, 1), 2.0701),  # 53
    Part.Circle(V(0, 635, 0), V(0, 0, 1), 2.0701),  # 54
    Part.Circle(V(0, 660.4, 0), V(0, 0, 1), 2.0701),  # 55
    Part.Circle(V(0, 685.8, 0), V(0, 0, 1), 2.0701),  # 56
    Part.Circle(V(0, 711.2, 0), V(0, 0, 1), 2.0701),  # 57
    Part.Circle(V(0, 736.6, 0), V(0, 0, 1), 2.0701),  # 58
], False)
sketch4.addConstraint([
    Sketcher.Constraint("Coincident", 29, 3, -1, 1),
    Sketcher.Constraint("Equal", 0, 1),
    Sketcher.Constraint("Equal", 1, 2),
    Sketcher.Constraint("Equal", 2, 3),
    Sketcher.Constraint("Equal", 3, 4),
    Sketcher.Constraint("Equal", 4, 5),
    Sketcher.Constraint("Equal", 5, 6),
    Sketcher.Constraint("Equal", 6, 7),
    Sketcher.Constraint("Equal", 7, 8),
    Sketcher.Constraint("Equal", 8, 9),
    Sketcher.Constraint("Equal", 9, 10),
    Sketcher.Constraint("Equal", 10, 11),
    Sketcher.Constraint("Equal", 11, 12),
    Sketcher.Constraint("Equal", 12, 13),
    Sketcher.Constraint("Equal", 13, 14),
    Sketcher.Constraint("Equal", 14, 15),
    Sketcher.Constraint("Equal", 15, 16),
    Sketcher.Constraint("Equal", 16, 17),
    Sketcher.Constraint("Equal", 17, 18),
    Sketcher.Constraint("Equal", 18, 19),
    Sketcher.Constraint("Equal", 19, 20),
    Sketcher.Constraint("Equal", 20, 21),
    Sketcher.Constraint("Equal", 21, 22),
    Sketcher.Constraint("Equal", 22, 23),
    Sketcher.Constraint("Equal", 23, 24),
    Sketcher.Constraint("Equal", 24, 25),
    Sketcher.Constraint("Equal", 25, 26),
    Sketcher.Constraint("Equal", 26, 27),
    Sketcher.Constraint("Equal", 27, 28),
    Sketcher.Constraint("Equal", 28, 29),
    Sketcher.Constraint("Equal", 29, 30),
    Sketcher.Constraint("Equal", 30, 31),
    Sketcher.Constraint("Equal", 31, 32),
    Sketcher.Constraint("Equal", 32, 33),
    Sketcher.Constraint("Equal", 33, 34),
    Sketcher.Constraint("Equal", 34, 35),
    Sketcher.Constraint("Equal", 35, 36),
    Sketcher.Constraint("Equal", 36, 37),
    Sketcher.Constraint("Equal", 37, 38),
    Sketcher.Constraint("Equal", 38, 39),
    Sketcher.Constraint("Equal", 39, 40),
    Sketcher.Constraint("Equal", 40, 41),
    Sketcher.Constraint("Equal", 41, 42),
    Sketcher.Constraint("Equal", 42, 43),
    Sketcher.Constraint("Equal", 43, 44),
    Sketcher.Constraint("Equal", 44, 45),
    Sketcher.Constraint("Equal", 45, 46),
    Sketcher.Constraint("Equal", 46, 47),
    Sketcher.Constraint("Equal", 47, 48),
    Sketcher.Constraint("Equal", 48, 49),
    Sketcher.Constraint("Equal", 49, 50),
    Sketcher.Constraint("Equal", 50, 51),
    Sketcher.Constraint("Equal", 51, 52),
    Sketcher.Constraint("Equal", 52, 53),
    Sketcher.Constraint("Equal", 53, 54),
    Sketcher.Constraint("Equal", 54, 55),
    Sketcher.Constraint("Equal", 55, 56),
    Sketcher.Constraint("Equal", 56, 57),
    Sketcher.Constraint("Equal", 57, 58),
    Sketcher.Constraint("Symmetric", 28, 3, 30, 3, -1, 1),
    Sketcher.Constraint("Symmetric", 27, 3, 31, 3, -1, 1),
    Sketcher.Constraint("Symmetric", 26, 3, 32, 3, -1, 1),
    Sketcher.Constraint("Symmetric", 25, 3, 33, 3, -1, 1),
    Sketcher.Constraint("Symmetric", 24, 3, 34, 3, -1, 1),
    Sketcher.Constraint("Symmetric", 23, 3, 35, 3, -1, 1),
    Sketcher.Constraint("Symmetric", 22, 3, 36, 3, -1, 1),
    Sketcher.Constraint("Symmetric", 21, 3, 37, 3, -1, 1),
    Sketcher.Constraint("Symmetric", 20, 3, 38, 3, -1, 1),
    Sketcher.Constraint("Symmetric", 19, 3, 39, 3, -1, 1),
    Sketcher.Constraint("Symmetric", 18, 3, 40, 3, -1, 1),
    Sketcher.Constraint("Symmetric", 17, 3, 41, 3, -1, 1),
    Sketcher.Constraint("Symmetric", 16, 3, 42, 3, -1, 1),
    Sketcher.Constraint("Symmetric", 15, 3, 43, 3, -1, 1),
    Sketcher.Constraint("Symmetric", 14, 3, 44, 3, -1, 1),
    Sketcher.Constraint("Symmetric", 13, 3, 45, 3, -1, 1),
    Sketcher.Constraint("Symmetric", 12, 3, 46, 3, -1, 1),
    Sketcher.Constraint("Symmetric", 11, 3, 47, 3, -1, 1),
    Sketcher.Constraint("Symmetric", 10, 3, 48, 3, -1, 1),
    Sketcher.Constraint("Symmetric", 9, 3, 49, 3, -1, 1),
    Sketcher.Constraint("Symmetric", 8, 3, 50, 3, -1, 1),
    Sketcher.Constraint("Symmetric", 7, 3, 51, 3, -1, 1),
    Sketcher.Constraint("Symmetric", 6, 3, 52, 3, -1, 1),
    Sketcher.Constraint("Symmetric", 5, 3, 53, 3, -1, 1),
    Sketcher.Constraint("Symmetric", 4, 3, 54, 3, -1, 1),
    Sketcher.Constraint("Symmetric", 3, 3, 55, 3, -1, 1),
    Sketcher.Constraint("Symmetric", 2, 3, 56, 3, -1, 1),
    Sketcher.Constraint("Symmetric", 0, 3, 57, 3, -1, 1),
    Sketcher.Constraint("Symmetric", 1, 3, 58, 3, -1, 1),
    Sketcher.Constraint("PointOnObject", 0, 3, -2),
    Sketcher.Constraint("PointOnObject", 1, 3, -2),
    Sketcher.Constraint("PointOnObject", 2, 3, -2),
    Sketcher.Constraint("PointOnObject", 3, 3, -2),
    Sketcher.Constraint("PointOnObject", 4, 3, -2),
    Sketcher.Constraint("PointOnObject", 5, 3, -2),
    Sketcher.Constraint("PointOnObject", 6, 3, -2),
    Sketcher.Constraint("PointOnObject", 7, 3, -2),
    Sketcher.Constraint("PointOnObject", 8, 3, -2),
    Sketcher.Constraint("PointOnObject", 9, 3, -2),
    Sketcher.Constraint("PointOnObject", 10, 3, -2),
    Sketcher.Constraint("PointOnObject", 11, 3, -2),
    Sketcher.Constraint("PointOnObject", 12, 3, -2),
    Sketcher.Constraint("PointOnObject", 13, 3, -2),
    Sketcher.Constraint("PointOnObject", 14, 3, -2),
    Sketcher.Constraint("PointOnObject", 15, 3, -2),
    Sketcher.Constraint("PointOnObject", 16, 3, -2),
    Sketcher.Constraint("PointOnObject", 17, 3, -2),
    Sketcher.Constraint("PointOnObject", 18, 3, -2),
    Sketcher.Constraint("PointOnObject", 19, 3, -2),
    Sketcher.Constraint("PointOnObject", 20, 3, -2),
    Sketcher.Constraint("PointOnObject", 21, 3, -2),
    Sketcher.Constraint("PointOnObject", 22, 3, -2),
    Sketcher.Constraint("PointOnObject", 23, 3, -2),
    Sketcher.Constraint("PointOnObject", 24, 3, -2),
    Sketcher.Constraint("PointOnObject", 25, 3, -2),
    Sketcher.Constraint("PointOnObject", 26, 3, -2),
    Sketcher.Constraint("PointOnObject", 27, 3, -2),
    Sketcher.Constraint("PointOnObject", 28, 3, -2),
    Sketcher.Constraint("Diameter", 0, Q("0.163 in")),
    Sketcher.Constraint("DistanceY", 0, 3, -1, 1, Q("28 in")),
    Sketcher.Constraint("DistanceY", 1, 3, -1, 1, Q("29 in")),
    Sketcher.Constraint("DistanceY", 2, 3, -1, 1, Q("27 in")),
    Sketcher.Constraint("DistanceY", 3, 3, -1, 1, Q("26 in")),
    Sketcher.Constraint("DistanceY", 4, 3, -1, 1, Q("25 in")),
    Sketcher.Constraint("DistanceY", 5, 3, -1, 1, Q("24 in")),
    Sketcher.Constraint("DistanceY", 6, 3, -1, 1, Q("23 in")),
    Sketcher.Constraint("DistanceY", 7, 3, -1, 1, Q("22 in")),
    Sketcher.Constraint("DistanceY", 8, 3, -1, 1, Q("21 in")),
    Sketcher.Constraint("DistanceY", 9, 3, -1, 1, Q("20 in")),
    Sketcher.Constraint("DistanceY", 10, 3, -1, 1, Q("19 in")),
    Sketcher.Constraint("DistanceY", 11, 3, -1, 1, Q("18 in")),
    Sketcher.Constraint("DistanceY", 12, 3, -1, 1, Q("17 in")),
    Sketcher.Constraint("DistanceY", 13, 3, -1, 1, Q("16 in")),
    Sketcher.Constraint("DistanceY", 14, 3, -1, 1, Q("15 in")),
    Sketcher.Constraint("DistanceY", 15, 3, -1, 1, Q("14 in")),
    Sketcher.Constraint("DistanceY", 16, 3, -1, 1, Q("13 in")),
    Sketcher.Constraint("DistanceY", 17, 3, -1, 1, Q("12 in")),
    Sketcher.Constraint("DistanceY", 18, 3, -1, 1, Q("11 in")),
    Sketcher.Constraint("DistanceY", 19, 3, -1, 1, Q("10 in")),
    Sketcher.Constraint("DistanceY", 20, 3, -1, 1, Q("9 in")),
    Sketcher.Constraint("DistanceY", 21, 3, -1, 1, Q("8 in")),
    Sketcher.Constraint("DistanceY", 22, 3, -1, 1, Q("7 in")),
    Sketcher.Constraint("DistanceY", 23, 3, -1, 1, Q("6 in")),
    Sketcher.Constraint("DistanceY", 24, 3, -1, 1, Q("5 in")),
    Sketcher.Constraint("DistanceY", 25, 3, -1, 1, Q("4 in")),
    Sketcher.Constraint("DistanceY", 26, 3, -1, 1, Q("3 in")),
    Sketcher.Constraint("DistanceY", 27, 3, -1, 1, Q("2 in")),
    Sketcher.Constraint("DistanceY", 28, 3, -1, 1, Q("1 in")),
])
sketch4.setExpression("Constraints[117]", "Params.sketch4_diameter")
doc.recompute()
hole2 = body.newObject("PartDesign::Hole", "Hole001")
hole2.Profile = sketch4
hole2.ThreadType = "None"
hole2.setExpression("Diameter", "Params.hole2_diameter")
hole2.DepthType = "Dimension"
hole2.setExpression("Depth", "Params.hole2_depth")
hole2.DrillPoint = "Flat"
hole2.Reversed = True
doc.recompute()

fillet = body.newObject("PartDesign::Fillet", "Fillet")
fillet.Base = (hole2, edges_at(hole2, [
    (-10.16, -22.86, 0),
    (10.16, -22.86, 0),
    (10.16, 22.86, 0),
    (-10.16, 22.86, 0),
]))
fillet.setExpression("Radius", "Params.fillet_radius")
doc.recompute()

fillet2 = body.newObject("PartDesign::Fillet", "Fillet001")
fillet2.Base = (fillet, edges_at(fillet, [
    (-12.7, 25.4, 0),
    (-12.7, -25.4, 0),
    (12.7, 25.4, 0),
    (12.7, -25.4, 0),
]))
fillet2.setExpression("Radius", "Params.fillet2_radius")

doc.recompute()
